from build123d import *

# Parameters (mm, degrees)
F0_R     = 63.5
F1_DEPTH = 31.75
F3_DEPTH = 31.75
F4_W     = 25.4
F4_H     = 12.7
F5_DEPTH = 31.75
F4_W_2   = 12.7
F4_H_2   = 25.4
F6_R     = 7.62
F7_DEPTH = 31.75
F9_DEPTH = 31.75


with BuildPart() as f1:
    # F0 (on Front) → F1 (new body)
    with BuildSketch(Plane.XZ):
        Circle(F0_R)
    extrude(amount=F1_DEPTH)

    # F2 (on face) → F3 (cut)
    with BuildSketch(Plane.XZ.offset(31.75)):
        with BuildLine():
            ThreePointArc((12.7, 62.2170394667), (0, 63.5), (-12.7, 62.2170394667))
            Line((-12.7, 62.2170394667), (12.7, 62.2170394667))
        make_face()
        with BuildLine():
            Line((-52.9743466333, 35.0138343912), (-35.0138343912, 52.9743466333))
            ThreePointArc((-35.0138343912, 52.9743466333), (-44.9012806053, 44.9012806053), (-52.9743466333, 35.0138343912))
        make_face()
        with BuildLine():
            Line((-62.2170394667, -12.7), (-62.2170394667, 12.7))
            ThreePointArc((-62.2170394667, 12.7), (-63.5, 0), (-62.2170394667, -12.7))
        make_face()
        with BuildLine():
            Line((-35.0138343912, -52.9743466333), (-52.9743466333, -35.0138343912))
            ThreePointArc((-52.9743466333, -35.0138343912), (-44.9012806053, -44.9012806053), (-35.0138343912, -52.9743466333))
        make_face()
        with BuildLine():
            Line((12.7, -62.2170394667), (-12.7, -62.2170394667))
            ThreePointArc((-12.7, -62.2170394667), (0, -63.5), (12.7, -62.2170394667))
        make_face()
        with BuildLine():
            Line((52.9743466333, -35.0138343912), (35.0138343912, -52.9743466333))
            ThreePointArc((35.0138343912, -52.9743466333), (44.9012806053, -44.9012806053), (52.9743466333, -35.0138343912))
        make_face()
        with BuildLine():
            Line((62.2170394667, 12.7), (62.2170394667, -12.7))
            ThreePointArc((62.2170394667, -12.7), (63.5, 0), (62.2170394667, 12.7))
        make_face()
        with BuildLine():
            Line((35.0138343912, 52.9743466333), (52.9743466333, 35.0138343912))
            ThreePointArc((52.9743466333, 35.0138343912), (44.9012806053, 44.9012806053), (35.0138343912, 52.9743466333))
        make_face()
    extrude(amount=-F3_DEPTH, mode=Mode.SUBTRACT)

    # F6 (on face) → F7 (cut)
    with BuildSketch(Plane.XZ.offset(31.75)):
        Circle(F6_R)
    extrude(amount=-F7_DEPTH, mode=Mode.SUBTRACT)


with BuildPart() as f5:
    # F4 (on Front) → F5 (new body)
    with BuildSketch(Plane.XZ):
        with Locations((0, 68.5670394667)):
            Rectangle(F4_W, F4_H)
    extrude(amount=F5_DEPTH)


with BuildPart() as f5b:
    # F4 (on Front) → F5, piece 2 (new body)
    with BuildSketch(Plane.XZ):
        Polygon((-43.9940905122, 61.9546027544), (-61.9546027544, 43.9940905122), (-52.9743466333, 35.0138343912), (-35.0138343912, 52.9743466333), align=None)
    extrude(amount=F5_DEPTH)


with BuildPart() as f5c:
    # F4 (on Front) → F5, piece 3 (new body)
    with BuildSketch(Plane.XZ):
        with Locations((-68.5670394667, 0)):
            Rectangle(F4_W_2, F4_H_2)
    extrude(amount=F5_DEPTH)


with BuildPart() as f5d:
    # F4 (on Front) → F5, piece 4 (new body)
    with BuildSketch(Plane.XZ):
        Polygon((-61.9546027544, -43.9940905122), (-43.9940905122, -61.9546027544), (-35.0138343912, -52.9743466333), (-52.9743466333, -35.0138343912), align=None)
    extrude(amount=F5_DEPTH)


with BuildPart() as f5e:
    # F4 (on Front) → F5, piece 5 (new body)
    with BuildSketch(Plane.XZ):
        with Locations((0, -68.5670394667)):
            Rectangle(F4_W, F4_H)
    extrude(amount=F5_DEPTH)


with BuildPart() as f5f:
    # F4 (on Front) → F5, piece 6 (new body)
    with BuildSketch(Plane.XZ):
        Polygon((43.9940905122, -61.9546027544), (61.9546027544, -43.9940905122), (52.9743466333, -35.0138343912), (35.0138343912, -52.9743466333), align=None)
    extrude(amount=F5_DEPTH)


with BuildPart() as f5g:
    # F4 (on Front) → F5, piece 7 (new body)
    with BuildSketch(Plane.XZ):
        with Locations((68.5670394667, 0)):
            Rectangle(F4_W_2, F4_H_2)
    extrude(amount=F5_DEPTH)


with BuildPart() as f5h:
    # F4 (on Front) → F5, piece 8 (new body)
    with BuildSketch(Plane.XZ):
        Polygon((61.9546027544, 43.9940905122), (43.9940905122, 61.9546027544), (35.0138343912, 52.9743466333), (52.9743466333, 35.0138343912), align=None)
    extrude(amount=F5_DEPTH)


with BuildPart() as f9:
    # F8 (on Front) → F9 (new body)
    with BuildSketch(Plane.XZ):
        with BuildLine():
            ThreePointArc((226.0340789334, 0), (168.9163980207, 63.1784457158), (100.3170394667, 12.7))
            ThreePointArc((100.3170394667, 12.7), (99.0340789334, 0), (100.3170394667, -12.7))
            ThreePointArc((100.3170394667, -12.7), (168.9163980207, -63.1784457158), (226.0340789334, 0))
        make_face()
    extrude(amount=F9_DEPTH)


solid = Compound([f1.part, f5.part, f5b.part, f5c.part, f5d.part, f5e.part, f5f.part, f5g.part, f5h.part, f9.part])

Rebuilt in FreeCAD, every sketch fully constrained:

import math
import FreeCAD as App
import Part
import Sketcher
from FreeCAD import Vector
Q = App.Units.Quantity

doc = App.newDocument("Part")
body = doc.addObject("PartDesign::Body", "Body")

sketch1 = body.newObject("Sketcher::SketchObject", "Sketch")
sketch1.AttachmentSupport = (doc.getObject("XZ_Plane"), [""])
sketch1.MapMode = "FlatFace"
sketch1.addGeometry(Part.Circle(Vector(0, 0, 0), Vector(0, 0, 1), 64), False)
sketch1.addConstraint([
    Sketcher.Constraint("Coincident", 0, 3, -1, 1),
    Sketcher.Constraint("Diameter", 0, Q("5 in")),
])
pad1 = body.newObject("PartDesign::Pad", "Pad")
pad1.Profile = sketch1
pad1.Length = Q("1.25 in")

sketch2 = body.newObject("Sketcher::SketchObject", "Sketch001")
sketch2.AttachmentSupport = (doc.getObject("XZ_Plane"), [""])
sketch2.MapMode = "FlatFace"
sketch2.AttachmentOffset = App.Placement(Vector(0, 0, 1.25 * 25.4), App.Rotation())
sketch2.addGeometry([
    Part.ArcOfCircle(Part.Circle(Vector(0, 0, 0), Vector(0, 0, 1), 64), math.radians(78), math.radians(102)),
    Part.LineSegment(Vector(-13, 62, 0), Vector(13, 62, 0)),
    Part.LineSegment(Vector(-53, 35, 0), Vector(-35, 53, 0)),
    Part.ArcOfCircle(Part.Circle(Vector(0, 0, 0), Vector(0, 0, 1), 64), math.radians(123), math.radians(147)),
    Part.LineSegment(Vector(-62, -13, 0), Vector(-62, 13, 0)),
    Part.ArcOfCircle(Part.Circle(Vector(0, 0, 0), Vector(0, 0, 1), 64), math.radians(168), math.radians(192)),
    Part.LineSegment(Vector(-35, -53, 0), Vector(-53, -35, 0)),
    Part.ArcOfCircle(Part.Circle(Vector(0, 0, 0), Vector(0, 0, 1), 64), math.radians(-147), math.radians(-123)),
    Part.LineSegment(Vector(13, -62, 0), Vector(-13, -62, 0)),
    Part.ArcOfCircle(Part.Circle(Vector(0, 0, 0), Vector(0, 0, 1), 64), math.radians(-102), math.radians(-78)),
    Part.LineSegment(Vector(53, -35, 0), Vector(35, -53, 0)),
    Part.ArcOfCircle(Part.Circle(Vector(0, 0, 0), Vector(0, 0, 1), 64), math.radians(-57), math.radians(-33)),
    Part.LineSegment(Vector(62, 13, 0), Vector(62, -13, 0)),
    Part.ArcOfCircle(Part.Circle(Vector(0, 0, 0), Vector(0, 0, 1), 64), math.radians(-12), math.radians(12)),
    Part.LineSegment(Vector(35, 53, 0), Vector(53, 35, 0)),
    Part.ArcOfCircle(Part.Circle(Vector(0, 0, 0), Vector(0, 0, 1), 64), math.radians(33), math.radians(57)),
], False)
sketch2.addConstraint([
    Sketcher.Constraint("Coincident", 0, 1, 1, 2),
    Sketcher.Constraint("Coincident", 1, 1, 0, 2),
    Sketcher.Constraint("Coincident", 2, 1, 3, 2),
    Sketcher.Constraint("Coincident", 3, 1, 2, 2),
    Sketcher.Constraint("Coincident", 4, 1, 5, 2),
    Sketcher.Constraint("Coincident", 5, 1, 4, 2),
    Sketcher.Constraint("Coincident", 6, 1, 7, 2),
    Sketcher.Constraint("Coincident", 7, 1, 6, 2),
    Sketcher.Constraint("Coincident", 8, 1, 9, 2),
    Sketcher.Constraint("Coincident", 9, 1, 8, 2),
    Sketcher.Constraint("Coincident", 10, 1, 11, 2),
    Sketcher.Constraint("Coincident", 11, 1, 10, 2),
    Sketcher.Constraint("Coincident", 12, 1, 13, 2),
    Sketcher.Constraint("Coincident", 13, 1, 12, 2),
    Sketcher.Constraint("Coincident", 14, 1, 15, 2),
    Sketcher.Constraint("Coincident", 15, 1, 14, 2),
    Sketcher.Constraint("Horizontal", 1),
    Sketcher.Constraint("Vertical", 4),
    Sketcher.Constraint("Horizontal", 8),
    Sketcher.Constraint("Vertical", 12),
    Sketcher.Constraint("Coincident", 0, 3, -1, 1),
    Sketcher.Constraint("Coincident", 3, 3, -1, 1),
    Sketcher.Constraint("Coincident", 5, 3, -1, 1),
    Sketcher.Constraint("Coincident", 7, 3, -1, 1),
    Sketcher.Constraint("Coincident", 9, 3, -1, 1),
    Sketcher.Constraint("Coincident", 11, 3, -1, 1),
    Sketcher.Constraint("Coincident", 13, 3, -1, 1),
    Sketcher.Constraint("Coincident", 15, 3, -1, 1),
    Sketcher.Constraint("Equal", 0, 3),
    Sketcher.Constraint("Equal", 3, 5),
    Sketcher.Constraint("Equal", 5, 7),
    Sketcher.Constraint("Equal", 7, 9),
    Sketcher.Constraint("Equal", 9, 11),
    Sketcher.Constraint("Equal", 11, 13),
    Sketcher.Constraint("Equal", 13, 15),
    Sketcher.Constraint("Perpendicular", 2, 6),
    Sketcher.Constraint("Perpendicular", 6, 10),
    Sketcher.Constraint("Perpendicular", 10, 14),
    Sketcher.Constraint("Horizontal", 7, 1, 10, 1),
    Sketcher.Constraint("Horizontal", 6, 1, 11, 1),
    Sketcher.Constraint("Horizontal", 5, 1, 12, 1),
    Sketcher.Constraint("Horizontal", 3, 1, 14, 1),
    Sketcher.Constraint("Vertical", 3, 1, 6, 1),
    Sketcher.Constraint("Vertical", 0, 1, 8, 1),
    Sketcher.Constraint("Equal", 8, 4),
    Sketcher.Constraint("Radius", 0, Q("2.5 in")),
    Sketcher.Constraint("DistanceX", 1, 1, 1, 2, Q("1 in")),
    Sketcher.Constraint("Distance", 2, Q("1 in")),
])
pocket1 = body.newObject("PartDesign::Pocket", "Pocket")
pocket1.Profile = sketch2
pocket1.Length = Q("1.25 in")

sketch3 = body.newObject("Sketcher::SketchObject", "Sketch002")
sketch3.AttachmentSupport = (doc.getObject("XZ_Plane"), [""])
sketch3.MapMode = "FlatFace"
sketch3.AttachmentOffset = App.Placement(Vector(0, 0, 1.25 * 25.4), App.Rotation())
sketch3.addGeometry(Part.Circle(Vector(0, 0, 0), Vector(0, 0, 1), 8), False)
sketch3.addConstraint([
    Sketcher.Constraint("Coincident", 0, 3, -1, 1),
    Sketcher.Constraint("Diameter", 0, Q("0.6 in")),
])
pocket2 = body.newObject("PartDesign::Pocket", "Pocket001")
pocket2.Profile = sketch3
pocket2.Length = Q("1.25 in")
body2 = doc.addObject("PartDesign::Body", "Body001")

sketch4 = body2.newObject("Sketcher::SketchObject", "Sketch003")
sketch4.AttachmentSupport = (doc.getObject("XZ_Plane001"), [""])
sketch4.MapMode = "FlatFace"
sketch4.addGeometry([
    Part.LineSegment(Vector(-13, 75, 0), Vector(-13, 62, 0)),
    Part.LineSegment(Vector(-13, 62, 0), Vector(13, 62, 0)),
    Part.LineSegment(Vector(13, 62, 0), Vector(13, 75, 0)),
    Part.LineSegment(Vector(13, 75, 0), Vector(-13, 75, 0)),
], False)
sketch4.addConstraint([
    Sketcher.Constraint("Coincident", 0, 2, 1, 1),
    Sketcher.Constraint("Coincident", 1, 2, 2, 1),
    Sketcher.Constraint("Coincident", 2, 2, 3, 1),
    Sketcher.Constraint("Coincident", 3, 2, 0, 1),
    Sketcher.Constraint("Vertical", 0),
    Sketcher.Constraint("Horizontal", 1),
    Sketcher.Constraint("Vertical", 2),
    Sketcher.Constraint("Horizontal", 3),
    Sketcher.Constraint("DistanceX", 1, 1, 1, 2, Q("1 in")),
    Sketcher.Constraint("DistanceY", 0, 2, 0, 1, Q("0.5 in")),
    Sketcher.Constraint("DistanceX", 0, 2, -1, 1, Q("0.5 in")),
    Sketcher.Constraint("DistanceY", -1, 1, 0, 2, Q("62.217039 mm")),
])
pad2 = body2.newObject("PartDesign::Pad", "Pad001")
pad2.Profile = sketch4
pad2.Length = Q("1.25 in")
body3 = doc.addObject("PartDesign::Body", "Body002")

sketch5 = body3.newObject("Sketcher::SketchObject", "Sketch004")
sketch5.AttachmentSupport = (doc.getObject("XZ_Plane002"), [""])
sketch5.MapMode = "FlatFace"
sketch5.addGeometry([
    Part.LineSegment(Vector(-44, 62, 0), Vector(-62, 44, 0)),
    Part.LineSegment(Vector(-62, 44, 0), Vector(-53, 35, 0)),
    Part.LineSegment(Vector(-53, 35, 0), Vector(-35, 53, 0)),
    Part.LineSegment(Vector(-35, 53, 0), Vector(-44, 62, 0)),
], False)
sketch5.addConstraint([
    Sketcher.Constraint("Coincident", 0, 2, 1, 1),
    Sketcher.Constraint("Coincident", 1, 2, 2, 1),
    Sketcher.Constraint("Coincident", 2, 2, 3, 1),
    Sketcher.Constraint("Coincident", 3, 2, 0, 1),
    Sketcher.Constraint("Perpendicular", 0, 1),
    Sketcher.Constraint("Perpendicular", 1, 2),
    Sketcher.Constraint("Perpendicular", 2, 3),
    Sketcher.Constraint("Distance", 0, Q("1 in")),
    Sketcher.Constraint("Angle", 0, Q("-135 deg")),
    Sketcher.Constraint("Distance", 1, Q("0.5 in")),
    Sketcher.Constraint("DistanceY", -1, 1, 0, 2, Q("43.994091 mm")),
    Sketcher.Constraint("DistanceX", 3, 2, -1, 1, Q("43.994091 mm")),
])
pad3 = body3.newObject("PartDesign::Pad", "Pad002")
pad3.Profile = sketch5
pad3.Length = Q("1.25 in")
body4 = doc.addObject("PartDesign::Body", "Body003")

sketch6 = body4.newObject("Sketcher::SketchObject", "Sketch005")
sketch6.AttachmentSupport = (doc.getObject("XZ_Plane003"), [""])
sketch6.MapMode = "FlatFace"
sketch6.addGeometry([
    Part.LineSegment(Vector(-75, 13, 0), Vector(-75, -13, 0)),
    Part.LineSegment(Vector(-75, -13, 0), Vector(-62, -13, 0)),
    Part.LineSegment(Vector(-62, -13, 0), Vector(-62, 13, 0)),
    Part.LineSegment(Vector(-62, 13, 0), Vector(-75, 13, 0)),
], False)
sketch6.addConstraint([
    Sketcher.Constraint("Coincident", 0, 2, 1, 1),
    Sketcher.Constraint("Coincident", 1, 2, 2, 1),
    Sketcher.Constraint("Coincident", 2, 2, 3, 1),
    Sketcher.Constraint("Coincident", 3, 2, 0, 1),
    Sketcher.Constraint("Vertical", 0),
    Sketcher.Constraint("Horizontal", 1),
    Sketcher.Constraint("Vertical", 2),
    Sketcher.Constraint("Horizontal", 3),
    Sketcher.Constraint("DistanceY", 0, 2, 0, 1, Q("1 in")),
    Sketcher.Constraint("DistanceX", 1, 1, 1, 2, Q("0.5 in")),
    Sketcher.Constraint("DistanceY", 0, 2, -1, 1, Q("0.5 in")),
    Sketcher.Constraint("DistanceX", 0, 2, -1, 1, Q("74.917039 mm")),
])
pad4 = body4.newObject("PartDesign::Pad", "Pad003")
pad4.Profile = sketch6
pad4.Length = Q("1.25 in")
body5 = doc.addObject("PartDesign::Body", "Body004")

sketch7 = body5.newObject("Sketcher::SketchObject", "Sketch006")
sketch7.AttachmentSupport = (doc.getObject("XZ_Plane004"), [""])
sketch7.MapMode = "FlatFace"
sketch7.addGeometry([
    Part.LineSegment(Vector(-62, -44, 0), Vector(-44, -62, 0)),
    Part.LineSegment(Vector(-44, -62, 0), Vector(-35, -53, 0)),
    Part.LineSegment(Vector(-35, -53, 0), Vector(-53, -35, 0)),
    Part.LineSegment(Vector(-53, -35, 0), Vector(-62, -44, 0)),
], False)
sketch7.addConstraint([
    Sketcher.Constraint("Coincident", 0, 2, 1, 1),
    Sketcher.Constraint("Coincident", 1, 2, 2, 1),
    Sketcher.Constraint("Coincident", 2, 2, 3, 1),
    Sketcher.Constraint("Coincident", 3, 2, 0, 1),
    Sketcher.Constraint("Perpendicular", 0, 1),
    Sketcher.Constraint("Perpendicular", 1, 2),
    Sketcher.Constraint("Perpendicular", 2, 3),
    Sketcher.Constraint("Distance", 0, Q("1 in")),
    Sketcher.Constraint("Angle", 0, Q("-45 deg")),
    Sketcher.Constraint("Distance", 1, Q("0.5 in")),
    Sketcher.Constraint("DistanceX", 0, 2, -1, 1, Q("43.994091 mm")),
    Sketcher.Constraint("DistanceY", 3, 2, -1, 1, Q("43.994091 mm")),
])
pad5 = body5.newObject("PartDesign::Pad", "Pad004")
pad5.Profile = sketch7
pad5.Length = Q("1.25 in")
body6 = doc.addObject("PartDesign::Body", "Body005")

sketch8 = body6.newObject("Sketcher::SketchObject", "Sketch007")
sketch8.AttachmentSupport = (doc.getObject("XZ_Plane005"), [""])
sketch8.MapMode = "FlatFace"
sketch8.addGeometry([
    Part.LineSegment(Vector(-13, -62, 0), Vector(-13, -75, 0)),
    Part.LineSegment(Vector(-13, -75, 0), Vector(13, -75, 0)),
    Part.LineSegment(Vector(13, -75, 0), Vector(13, -62, 0)),
    Part.LineSegment(Vector(13, -62, 0), Vector(-13, -62, 0)),
], False)
sketch8.addConstraint([
    Sketcher.Constraint("Coincident", 0, 2, 1, 1),
    Sketcher.Constraint("Coincident", 1, 2, 2, 1),
    Sketcher.Constraint("Coincident", 2, 2, 3, 1),
    Sketcher.Constraint("Coincident", 3, 2, 0, 1),
    Sketcher.Constraint("Vertical", 0),
    Sketcher.Constraint("Horizontal", 1),
    Sketcher.Constraint("Vertical", 2),
    Sketcher.Constraint("Horizontal", 3),
    Sketcher.Constraint("DistanceX", 1, 1, 1, 2, Q("1 in")),
    Sketcher.Constraint("DistanceY", 0, 2, 0, 1, Q("0.5 in")),
    Sketcher.Constraint("DistanceX", 0, 2, -1, 1, Q("0.5 in")),
    Sketcher.Constraint("DistanceY", 0, 2, -1, 1, Q("74.917039 mm")),
])
pad6 = body6.newObject("PartDesign::Pad", "Pad005")
pad6.Profile = sketch8
pad6.Length = Q("1.25 in")
body7 = doc.addObject("PartDesign::Body", "Body006")

sketch9 = body7.newObject("Sketcher::SketchObject", "Sketch008")
sketch9.AttachmentSupport = (doc.getObject("XZ_Plane006"), [""])
sketch9.MapMode = "FlatFace"
sketch9.addGeometry([
    Part.LineSegment(Vector(44, -62, 0), Vector(62, -44, 0)),
    Part.LineSegment(Vector(62, -44, 0), Vector(53, -35, 0)),
    Part.LineSegment(Vector(53, -35, 0), Vector(35, -53, 0)),
    Part.LineSegment(Vector(35, -53, 0), Vector(44, -62, 0)),
], False)
sketch9.addConstraint([
    Sketcher.Constraint("Coincident", 0, 2, 1, 1),
    Sketcher.Constraint("Coincident", 1, 2, 2, 1),
    Sketcher.Constraint("Coincident", 2, 2, 3, 1),
    Sketcher.Constraint("Coincident", 3, 2, 0, 1),
    Sketcher.Constraint("Perpendicular", 0, 1),
    Sketcher.Constraint("Perpendicular", 1, 2),
    Sketcher.Constraint("Perpendicular", 2, 3),
    Sketcher.Constraint("Distance", 0, Q("1 in")),
    Sketcher.Constraint("Angle", 0, Q("45 deg")),
    Sketcher.Constraint("Distance", 1, Q("0.5 in")),
    Sketcher.Constraint("DistanceY", 0, 2, -1, 1, Q("43.994091 mm")),
    Sketcher.Constraint("DistanceX", -1, 1, 3, 2, Q("43.994091 mm")),
])
pad7 = body7.newObject("PartDesign::Pad", "Pad006")
pad7.Profile = sketch9
pad7.Length = Q("1.25 in")
body8 = doc.addObject("PartDesign::Body", "Body007")

sketch10 = body8.newObject("Sketcher::SketchObject", "Sketch009")
sketch10.AttachmentSupport = (doc.getObject("XZ_Plane007"), [""])
sketch10.MapMode = "FlatFace"
sketch10.addGeometry([
    Part.LineSegment(Vector(62, 13, 0), Vector(62, -13, 0)),
    Part.LineSegment(Vector(62, -13, 0), Vector(75, -13, 0)),
    Part.LineSegment(Vector(75, -13, 0), Vector(75, 13, 0)),
    Part.LineSegment(Vector(75, 13, 0), Vector(62, 13, 0)),
], False)
sketch10.addConstraint([
    Sketcher.Constraint("Coincident", 0, 2, 1, 1),
    Sketcher.Constraint("Coincident", 1, 2, 2, 1),
    Sketcher.Constraint("Coincident", 2, 2, 3, 1),
    Sketcher.Constraint("Coincident", 3, 2, 0, 1),
    Sketcher.Constraint("Vertical", 0),
    Sketcher.Constraint("Horizontal", 1),
    Sketcher.Constraint("Vertical", 2),
    Sketcher.Constraint("Horizontal", 3),
    Sketcher.Constraint("DistanceY", 0, 2, 0, 1, Q("1 in")),
    Sketcher.Constraint("DistanceX", 1, 1, 1, 2, Q("0.5 in")),
    Sketcher.Constraint("DistanceY", 0, 2, -1, 1, Q("0.5 in")),
    Sketcher.Constraint("DistanceX", -1, 1, 0, 2, Q("62.217039 mm")),
])
pad8 = body8.newObject("PartDesign::Pad", "Pad007")
pad8.Profile = sketch10
pad8.Length = Q("1.25 in")
body9 = doc.addObject("PartDesign::Body", "Body008")

sketch11 = body9.newObject("Sketcher::SketchObject", "Sketch010")
sketch11.AttachmentSupport = (doc.getObject("XZ_Plane008"), [""])
sketch11.MapMode = "FlatFace"
sketch11.addGeometry([
    Part.LineSegment(Vector(62, 44, 0), Vector(44, 62, 0)),
    Part.LineSegment(Vector(44, 62, 0), Vector(35, 53, 0)),
    Part.LineSegment(Vector(35, 53, 0), Vector(53, 35, 0)),
    Part.LineSegment(Vector(53, 35, 0), Vector(62, 44, 0)),
], False)
sketch11.addConstraint([
    Sketcher.Constraint("Coincident", 0, 2, 1, 1),
    Sketcher.Constraint("Coincident", 1, 2, 2, 1),
    Sketcher.Constraint("Coincident", 2, 2, 3, 1),
    Sketcher.Constraint("Coincident", 3, 2, 0, 1),
    Sketcher.Constraint("Perpendicular", 0, 1),
    Sketcher.Constraint("Perpendicular", 1, 2),
    Sketcher.Constraint("Perpendicular", 2, 3),
    Sketcher.Constraint("Distance", 0, Q("1 in")),
    Sketcher.Constraint("Angle", 0, Q("135 deg")),
    Sketcher.Constraint("Distance", 1, Q("0.5 in")),
    Sketcher.Constraint("DistanceX", -1, 1, 0, 2, Q("43.994091 mm")),
    Sketcher.Constraint("DistanceY", -1, 1, 3, 2, Q("43.994091 mm")),
])
pad9 = body9.newObject("PartDesign::Pad", "Pad008")
pad9.Profile = sketch11
pad9.Length = Q("1.25 in")
body10 = doc.addObject("PartDesign::Body", "Body009")

sketch12 = body10.newObject("Sketcher::SketchObject", "Sketch011")
sketch12.AttachmentSupport = (doc.getObject("XZ_Plane009"), [""])
sketch12.MapMode = "FlatFace"
sketch12.addGeometry([
    Part.ArcOfCircle(Part.Circle(Vector(163, 0, 0), Vector(0, 0, 1), 64), math.radians(0), math.radians(168)),
    Part.ArcOfCircle(Part.Circle(Vector(163, 0, 0), Vector(0, 0, 1), 64), math.radians(168), math.radians(192)),
    Part.ArcOfCircle(Part.Circle(Vector(163, 0, 0), Vector(0, 0, 1), 64), math.radians(-168), math.radians(0)),
], False)
sketch12.addConstraint([
    Sketcher.Constraint("Tangent", 0, 2, 1, 1),
    Sketcher.Constraint("Tangent", 1, 2, 2, 1),
    Sketcher.Constraint("Tangent", 2, 2, 0, 1),
    Sketcher.Constraint("Symmetric", 0, 2, 1, 2, -1),
    Sketcher.Constraint("PointOnObject", 2, 2, -1),
    Sketcher.Constraint("Radius", 0, Q("2.5 in")),
    Sketcher.Constraint("DistanceY", 1, 2, 0, 2, Q("1 in")),
    Sketcher.Constraint("DistanceX", -1, 1, 0, 3, Q("162.534079 mm")),
])
pad10 = body10.newObject("PartDesign::Pad", "Pad009")
pad10.Profile = sketch12
pad10.Length = Q("1.25 in")

doc.recompute()
